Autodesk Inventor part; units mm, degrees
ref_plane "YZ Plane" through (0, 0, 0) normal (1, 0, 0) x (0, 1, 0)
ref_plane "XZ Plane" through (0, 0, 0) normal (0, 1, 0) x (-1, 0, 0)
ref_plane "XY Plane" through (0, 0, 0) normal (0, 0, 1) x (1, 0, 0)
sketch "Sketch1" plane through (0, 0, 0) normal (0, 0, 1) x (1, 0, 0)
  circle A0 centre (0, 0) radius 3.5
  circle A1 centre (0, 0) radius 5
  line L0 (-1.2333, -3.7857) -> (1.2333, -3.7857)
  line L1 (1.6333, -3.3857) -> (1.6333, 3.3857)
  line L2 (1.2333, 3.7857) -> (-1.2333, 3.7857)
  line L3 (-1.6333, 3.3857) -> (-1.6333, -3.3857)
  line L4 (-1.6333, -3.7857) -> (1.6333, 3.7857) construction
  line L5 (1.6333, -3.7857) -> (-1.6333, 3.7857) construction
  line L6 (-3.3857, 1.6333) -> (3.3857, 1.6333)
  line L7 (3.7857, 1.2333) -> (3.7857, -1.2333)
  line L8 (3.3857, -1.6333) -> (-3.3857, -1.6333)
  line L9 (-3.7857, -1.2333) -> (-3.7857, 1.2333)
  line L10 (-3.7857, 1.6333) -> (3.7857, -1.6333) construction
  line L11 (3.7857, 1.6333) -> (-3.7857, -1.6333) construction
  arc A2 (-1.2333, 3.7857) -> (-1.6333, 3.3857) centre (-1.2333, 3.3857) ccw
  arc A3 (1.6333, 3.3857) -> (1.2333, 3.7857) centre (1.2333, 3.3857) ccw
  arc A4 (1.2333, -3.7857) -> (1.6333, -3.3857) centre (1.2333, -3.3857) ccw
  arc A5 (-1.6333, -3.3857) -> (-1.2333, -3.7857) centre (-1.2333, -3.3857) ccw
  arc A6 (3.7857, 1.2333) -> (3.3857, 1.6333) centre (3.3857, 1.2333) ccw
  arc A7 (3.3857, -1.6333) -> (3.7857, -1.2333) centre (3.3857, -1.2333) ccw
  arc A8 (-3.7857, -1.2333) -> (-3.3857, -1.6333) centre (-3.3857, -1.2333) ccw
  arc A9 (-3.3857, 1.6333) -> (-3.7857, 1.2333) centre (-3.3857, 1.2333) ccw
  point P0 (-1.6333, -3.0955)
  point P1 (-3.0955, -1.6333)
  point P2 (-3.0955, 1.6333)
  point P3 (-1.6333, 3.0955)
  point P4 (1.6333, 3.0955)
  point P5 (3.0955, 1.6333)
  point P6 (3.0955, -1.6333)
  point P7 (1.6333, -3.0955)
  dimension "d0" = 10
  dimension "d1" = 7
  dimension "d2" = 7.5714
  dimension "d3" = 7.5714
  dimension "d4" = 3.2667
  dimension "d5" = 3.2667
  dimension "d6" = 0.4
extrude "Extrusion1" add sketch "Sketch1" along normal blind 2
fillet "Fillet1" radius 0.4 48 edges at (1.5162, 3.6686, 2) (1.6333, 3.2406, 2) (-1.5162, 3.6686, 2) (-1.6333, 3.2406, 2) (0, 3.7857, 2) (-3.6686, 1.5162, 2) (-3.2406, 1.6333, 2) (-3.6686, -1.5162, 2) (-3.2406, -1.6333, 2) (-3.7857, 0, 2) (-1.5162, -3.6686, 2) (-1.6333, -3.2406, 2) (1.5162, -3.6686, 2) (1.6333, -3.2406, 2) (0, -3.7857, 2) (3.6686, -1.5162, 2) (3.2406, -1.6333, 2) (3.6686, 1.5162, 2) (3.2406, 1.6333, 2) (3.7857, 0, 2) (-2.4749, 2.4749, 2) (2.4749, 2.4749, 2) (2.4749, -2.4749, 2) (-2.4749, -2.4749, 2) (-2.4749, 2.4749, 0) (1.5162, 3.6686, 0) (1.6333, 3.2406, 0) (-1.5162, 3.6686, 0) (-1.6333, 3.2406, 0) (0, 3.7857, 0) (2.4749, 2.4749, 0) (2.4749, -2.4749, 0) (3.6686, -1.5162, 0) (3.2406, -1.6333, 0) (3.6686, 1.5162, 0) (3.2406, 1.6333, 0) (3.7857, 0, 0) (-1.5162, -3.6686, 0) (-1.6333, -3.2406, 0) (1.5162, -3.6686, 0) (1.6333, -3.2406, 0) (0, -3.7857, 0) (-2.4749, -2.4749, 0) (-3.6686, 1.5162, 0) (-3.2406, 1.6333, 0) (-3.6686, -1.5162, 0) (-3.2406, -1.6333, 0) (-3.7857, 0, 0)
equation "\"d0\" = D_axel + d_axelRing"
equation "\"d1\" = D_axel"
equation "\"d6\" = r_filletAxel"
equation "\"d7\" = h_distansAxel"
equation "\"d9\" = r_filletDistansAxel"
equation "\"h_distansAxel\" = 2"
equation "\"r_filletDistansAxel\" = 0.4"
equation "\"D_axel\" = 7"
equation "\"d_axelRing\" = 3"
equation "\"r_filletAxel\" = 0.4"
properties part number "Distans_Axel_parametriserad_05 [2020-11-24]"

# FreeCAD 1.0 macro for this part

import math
import FreeCAD as App
import Part
import Sketcher
from FreeCAD import Vector
Q = App.Units.Quantity


def edges_at(feature, points):
    """Names of the edges that pass closest to the given points."""
    edges = feature.Shape.Edges
    near = lambda p: min(range(len(edges)), key=lambda i: edges[i].distToShape(Part.Vertex(*p))[0])
    return sorted({f"Edge{near(p) + 1}" for p in points})

doc = App.newDocument("Part")
body = doc.addObject("PartDesign::Body", "Body")

# Sketch on XY plane
sketch1 = doc.addObject("Sketcher::SketchObject", "Sketch")
body.addObject(sketch1)
sketch1.AttachmentSupport = (doc.XY_Plane, [""])
sketch1.MapMode = "FlatFace"
sketch1.addGeometry(Part.Circle(Vector(0, 0, 0), Vector(0, 0, 1), 5), False)
sketch1.addGeometry(Part.ArcOfCircle(Part.Circle(Vector(0, 0, 0), Vector(0, 0, 1), 3.5), math.radians(27.817522), math.radians(62.182478)), False)
sketch1.addGeometry(Part.LineSegment(Vector(3.095534, 1.6333, 0), Vector(3.3857, 1.6333, 0)), False)
sketch1.addGeometry(Part.ArcOfCircle(Part.Circle(Vector(3.3857, 1.2333, 0), Vector(0, 0, 1), 0.4), math.radians(0), math.radians(90)), False)
sketch1.addGeometry(Part.LineSegment(Vector(3.7857, 1.2333, 0), Vector(3.7857, -1.2333, 0)), False)
sketch1.addGeometry(Part.ArcOfCircle(Part.Circle(Vector(3.3857, -1.2333, 0), Vector(0, 0, 1), 0.4), math.radians(-90), math.radians(0)), False)
sketch1.addGeometry(Part.LineSegment(Vector(3.3857, -1.6333, 0), Vector(3.095534, -1.6333, 0)), False)
sketch1.addGeometry(Part.ArcOfCircle(Part.Circle(Vector(0, 0, 0), Vector(0, 0, 1), 3.5), math.radians(-62.182478), math.radians(-27.817522)), False)
sketch1.addGeometry(Part.LineSegment(Vector(1.6333, -3.095534, 0), Vector(1.6333, -3.3857, 0)), False)
sketch1.addGeometry(Part.ArcOfCircle(Part.Circle(Vector(1.2333, -3.3857, 0), Vector(0, 0, 1), 0.4), math.radians(-90), math.radians(0)), False)
sketch1.addGeometry(Part.LineSegment(Vector(1.2333, -3.7857, 0), Vector(-1.2333, -3.7857, 0)), False)
sketch1.addGeometry(Part.ArcOfCircle(Part.Circle(Vector(-1.2333, -3.3857, 0), Vector(0, 0, 1), 0.4), math.radians(180), math.radians(270)), False)
sketch1.addGeometry(Part.LineSegment(Vector(-1.6333, -3.3857, 0), Vector(-1.6333, -3.095534, 0)), False)
sketch1.addGeometry(Part.ArcOfCircle(Part.Circle(Vector(0, 0, 0), Vector(0, 0, 1), 3.5), math.radians(-152.182478), math.radians(-117.817522)), False)
sketch1.addGeometry(Part.LineSegment(Vector(-3.095534, -1.6333, 0), Vector(-3.3857, -1.6333, 0)), False)
sketch1.addGeometry(Part.ArcOfCircle(Part.Circle(Vector(-3.3857, -1.2333, 0), Vector(0, 0, 1), 0.4), math.radians(180), math.radians(270)), False)
sketch1.addGeometry(Part.LineSegment(Vector(-3.7857, -1.2333, 0), Vector(-3.7857, 1.2333, 0)), False)
sketch1.addGeometry(Part.ArcOfCircle(Part.Circle(Vector(-3.3857, 1.2333, 0), Vector(0, 0, 1), 0.4), math.radians(90), math.radians(180)), False)
sketch1.addGeometry(Part.LineSegment(Vector(-3.3857, 1.6333, 0), Vector(-3.095534, 1.6333, 0)), False)
sketch1.addGeometry(Part.ArcOfCircle(Part.Circle(Vector(0, 0, 0), Vector(0, 0, 1), 3.5), math.radians(117.817522), math.radians(152.182478)), False)
sketch1.addGeometry(Part.LineSegment(Vector(-1.6333, 3.095534, 0), Vector(-1.6333, 3.3857, 0)), False)
sketch1.addGeometry(Part.ArcOfCircle(Part.Circle(Vector(-1.2333, 3.3857, 0), Vector(0, 0, 1), 0.4), math.radians(90), math.radians(180)), False)
sketch1.addGeometry(Part.LineSegment(Vector(-1.2333, 3.7857, 0), Vector(1.2333, 3.7857, 0)), False)
sketch1.addGeometry(Part.ArcOfCircle(Part.Circle(Vector(1.2333, 3.3857, 0), Vector(0, 0, 1), 0.4), math.radians(0), math.radians(90)), False)
sketch1.addGeometry(Part.LineSegment(Vector(1.6333, 3.3857, 0), Vector(1.6333, 3.095534, 0)), False)
sketch1.addConstraint(Sketcher.Constraint("Coincident", 1, 1, 2, 1))
sketch1.addConstraint(Sketcher.Constraint("Tangent", 2, 2, 3, 2))
sketch1.addConstraint(Sketcher.Constraint("Tangent", 3, 1, 4, 1))
sketch1.addConstraint(Sketcher.Constraint("Tangent", 4, 2, 5, 2))
sketch1.addConstraint(Sketcher.Constraint("Tangent", 5, 1, 6, 1))
sketch1.addConstraint(Sketcher.Constraint("Coincident", 6, 2, 7, 2))
sketch1.addConstraint(Sketcher.Constraint("Coincident", 7, 1, 8, 1))
sketch1.addConstraint(Sketcher.Constraint("Tangent", 8, 2, 9, 2))
sketch1.addConstraint(Sketcher.Constraint("Tangent", 9, 1, 10, 1))
sketch1.addConstraint(Sketcher.Constraint("Tangent", 10, 2, 11, 2))
sketch1.addConstraint(Sketcher.Constraint("Tangent", 11, 1, 12, 1))
sketch1.addConstraint(Sketcher.Constraint("Coincident", 12, 2, 13, 2))
sketch1.addConstraint(Sketcher.Constraint("Coincident", 13, 1, 14, 1))
sketch1.addConstraint(Sketcher.Constraint("Tangent", 14, 2, 15, 2))
sketch1.addConstraint(Sketcher.Constraint("Tangent", 15, 1, 16, 1))
sketch1.addConstraint(Sketcher.Constraint("Tangent", 16, 2, 17, 2))
sketch1.addConstraint(Sketcher.Constraint("Tangent", 17, 1, 18, 1))
sketch1.addConstraint(Sketcher.Constraint("Coincident", 18, 2, 19, 2))
sketch1.addConstraint(Sketcher.Constraint("Coincident", 19, 1, 20, 1))
sketch1.addConstraint(Sketcher.Constraint("Tangent", 20, 2, 21, 2))
sketch1.addConstraint(Sketcher.Constraint("Tangent", 21, 1, 22, 1))
sketch1.addConstraint(Sketcher.Constraint("Tangent", 22, 2, 23, 2))
sketch1.addConstraint(Sketcher.Constraint("Tangent", 23, 1, 24, 1))
sketch1.addConstraint(Sketcher.Constraint("Coincident", 24, 2, 1, 2))
sketch1.addConstraint(Sketcher.Constraint("Horizontal", 2))
sketch1.addConstraint(Sketcher.Constraint("Vertical", 4))
sketch1.addConstraint(Sketcher.Constraint("Horizontal", 6))
sketch1.addConstraint(Sketcher.Constraint("Vertical", 8))
sketch1.addConstraint(Sketcher.Constraint("Horizontal", 10))
sketch1.addConstraint(Sketcher.Constraint("Vertical", 12))
sketch1.addConstraint(Sketcher.Constraint("Horizontal", 14))
sketch1.addConstraint(Sketcher.Constraint("Vertical", 16))
sketch1.addConstraint(Sketcher.Constraint("Horizontal", 18))
sketch1.addConstraint(Sketcher.Constraint("Vertical", 20))
sketch1.addConstraint(Sketcher.Constraint("Horizontal", 22))
sketch1.addConstraint(Sketcher.Constraint("Vertical", 24))
sketch1.addConstraint(Sketcher.Constraint("Coincident", 0, 3, -1, 1))
sketch1.addConstraint(Sketcher.Constraint("Coincident", 1, 3, -1, 1))
sketch1.addConstraint(Sketcher.Constraint("Coincident", 7, 3, -1, 1))
sketch1.addConstraint(Sketcher.Constraint("Coincident", 13, 3, -1, 1))
sketch1.addConstraint(Sketcher.Constraint("Coincident", 19, 3, -1, 1))
sketch1.addConstraint(Sketcher.Constraint("Equal", 3, 5))
sketch1.addConstraint(Sketcher.Constraint("Equal", 1, 7))
sketch1.addConstraint(Sketcher.Constraint("Equal", 5, 9))
sketch1.addConstraint(Sketcher.Constraint("Equal", 9, 11))
sketch1.addConstraint(Sketcher.Constraint("Equal", 7, 13))
sketch1.addConstraint(Sketcher.Constraint("Equal", 11, 15))
sketch1.addConstraint(Sketcher.Constraint("Equal", 15, 17))
sketch1.addConstraint(Sketcher.Constraint("Equal", 13, 19))
sketch1.addConstraint(Sketcher.Constraint("Equal", 17, 21))
sketch1.addConstraint(Sketcher.Constraint("Equal", 21, 23))
sketch1.addConstraint(Sketcher.Constraint("Symmetric", 3, 3, 15, 3, -1, 1))
sketch1.addConstraint(Sketcher.Constraint("Symmetric", 9, 3, 21, 3, -1, 1))
sketch1.addConstraint(Sketcher.Constraint("Horizontal", 5, 3, 15, 3))
sketch1.addConstraint(Sketcher.Constraint("Horizontal", 3, 3, 17, 3))
sketch1.addConstraint(Sketcher.Constraint("Horizontal", 7, 1, 12, 2))
sketch1.addConstraint(Sketcher.Constraint("Horizontal", 19, 1, 24, 2))
sketch1.addConstraint(Sketcher.Constraint("Equal", 22, 4))
sketch1.addConstraint(Sketcher.Constraint("Equal", 18, 8))
sketch1.addConstraint(Sketcher.Constraint("Diameter", 0, Q("10 mm")))
sketch1.addConstraint(Sketcher.Constraint("Radius", 1, Q("3.5 mm")))
sketch1.addConstraint(Sketcher.Constraint("Radius", 3, Q("0.4 mm")))
sketch1.addConstraint(Sketcher.Constraint("DistanceX", 2, 1, 2, 2, Q("0.2902 mm")))
sketch1.addConstraint(Sketcher.Constraint("DistanceX", 10, 2, 10, 1, Q("2.4666 mm")))
pad1 = doc.addObject("PartDesign::Pad", "Pad")
body.addObject(pad1)
pad1.Profile = sketch1
pad1.Length = 2
doc.recompute()

fillet = doc.addObject("PartDesign::Fillet", "Fillet")
body.addObject(fillet)
fillet.Base = (pad1, edges_at(pad1, [
    (1.516, 3.669, 2),
    (1.633, 3.241, 2),
    (-1.516, 3.669, 2),
    (-1.633, 3.241, 2),
    (0, 3.786, 2),
    (-3.669, 1.516, 2),
    (-3.241, 1.633, 2),
    (-3.669, -1.516, 2),
    (-3.241, -1.633, 2),
    (-3.786, 0, 2),
    (-1.516, -3.669, 2),
    (-1.633, -3.241, 2),
    (1.516, -3.669, 2),
    (1.633, -3.241, 2),
    (0, -3.786, 2),
    (3.669, -1.516, 2),
    (3.241, -1.633, 2),
    (3.669, 1.516, 2),
    (3.241, 1.633, 2),
    (3.786, 0, 2),
    (-2.475, 2.475, 2),
    (2.475, 2.475, 2),
    (2.475, -2.475, 2),
    (-2.475, -2.475, 2),
    (-2.475, 2.475, 0),
    (1.516, 3.669, 0),
    (1.633, 3.241, 0),
    (-1.516, 3.669, 0),
    (-1.633, 3.241, 0),
    (0, 3.786, 0),
    (2.475, 2.475, 0),
    (2.475, -2.475, 0),
    (3.669, -1.516, 0),
    (3.241, -1.633, 0),
    (3.669, 1.516, 0),
    (3.241, 1.633, 0),
    (3.786, 0, 0),
    (-1.516, -3.669, 0),
    (-1.633, -3.241, 0),
    (1.516, -3.669, 0),
    (1.633, -3.241, 0),
    (0, -3.786, 0),
    (-2.475, -2.475, 0),
    (-3.669, 1.516, 0),
    (-3.241, 1.633, 0),
    (-3.669, -1.516, 0),
    (-3.241, -1.633, 0),
    (-3.786, 0, 0),
]))
fillet.Radius = 0.4

doc.recompute()
